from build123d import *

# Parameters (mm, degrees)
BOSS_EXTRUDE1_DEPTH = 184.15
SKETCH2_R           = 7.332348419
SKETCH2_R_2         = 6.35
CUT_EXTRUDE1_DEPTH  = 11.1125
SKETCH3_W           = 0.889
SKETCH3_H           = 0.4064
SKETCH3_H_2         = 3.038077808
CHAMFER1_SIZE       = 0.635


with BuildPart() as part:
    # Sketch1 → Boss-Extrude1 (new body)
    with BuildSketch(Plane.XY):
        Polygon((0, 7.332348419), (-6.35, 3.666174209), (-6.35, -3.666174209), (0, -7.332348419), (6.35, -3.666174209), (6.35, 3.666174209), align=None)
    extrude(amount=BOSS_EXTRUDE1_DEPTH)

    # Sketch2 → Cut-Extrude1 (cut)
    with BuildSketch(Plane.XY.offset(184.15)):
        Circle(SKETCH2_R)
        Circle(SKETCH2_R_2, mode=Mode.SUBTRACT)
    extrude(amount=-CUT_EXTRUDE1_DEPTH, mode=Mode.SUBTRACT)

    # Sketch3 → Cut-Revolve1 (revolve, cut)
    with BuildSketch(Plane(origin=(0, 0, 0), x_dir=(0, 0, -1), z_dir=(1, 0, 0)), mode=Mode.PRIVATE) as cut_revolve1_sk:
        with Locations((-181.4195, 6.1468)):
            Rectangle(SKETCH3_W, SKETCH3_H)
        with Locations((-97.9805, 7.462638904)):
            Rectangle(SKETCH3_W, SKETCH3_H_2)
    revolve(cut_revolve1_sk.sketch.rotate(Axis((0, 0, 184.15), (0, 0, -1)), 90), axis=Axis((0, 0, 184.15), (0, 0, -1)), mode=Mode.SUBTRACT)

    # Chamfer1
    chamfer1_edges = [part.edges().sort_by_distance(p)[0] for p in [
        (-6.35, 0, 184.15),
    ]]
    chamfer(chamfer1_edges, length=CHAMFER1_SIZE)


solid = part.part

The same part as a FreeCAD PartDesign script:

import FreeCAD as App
import Part
import Sketcher
from FreeCAD import Vector
Q = App.Units.Quantity


def edges_at(feature, points):
    """Names of the edges that pass closest to the given points."""
    edges = feature.Shape.Edges
    near = lambda p: min(range(len(edges)), key=lambda i: edges[i].distToShape(Part.Vertex(*p))[0])
    return sorted({f"Edge{near(p) + 1}" for p in points})


def add_polygon(sketch, points):
    """Adds a closed chain of lines whose ends are joined by coincident constraints."""
    first, n = sketch.GeometryCount, len(points)
    for a, b in zip(points, points[1:] + points[:1]):
        sketch.addGeometry(Part.LineSegment(App.Vector(*a, 0), App.Vector(*b, 0)), False)
    for i in range(n):
        sketch.addConstraint(Sketcher.Constraint("Coincident", first + i, 2, first + (i + 1) % n, 1))

doc = App.newDocument("Part")
params = doc.addObject("Spreadsheet::Sheet", "Params")
for row, (alias, value) in enumerate([
    ("pad1_length", "7.25 in"),
    ("sketch2_diameter", "0.5 in"),
    ("pocket1_length", "0.4375 in"),
    ("sketch3_width", "0.016 in"),
    ("sketch3_height", "0.035 in"),
    ("groove_angle", "360 deg"),
    ("chamfer_size", "0.025 in"),
], start=1):
    params.set(f"A{row}", alias)
    params.set(f"B{row}", "=" + value)
    params.setAlias(f"B{row}", alias)

body = doc.addObject("PartDesign::Body", "Body")

sketch1 = body.newObject("Sketcher::SketchObject", "Sketch")
sketch1.AttachmentSupport = (doc.getObject("XY_Plane"), [""])
sketch1.MapMode = "FlatFace"
add_polygon(sketch1, [(0, 7), (-6, 4), (-6, -4), (0, -7), (6, -4), (6, 4)])
sketch1.addConstraint([
    Sketcher.Constraint("Vertical", 1),
    Sketcher.Constraint("Vertical", 4),
    Sketcher.Constraint("Symmetric", 0, 2, 3, 2, -1, 1),
    Sketcher.Constraint("Symmetric", 2, 2, 5, 2, -1, 1),
    Sketcher.Constraint("PointOnObject", 2, 2, -2),
    Sketcher.Constraint("Parallel", 2, 5),
    Sketcher.Constraint("Horizontal", 1, 2, 3, 2),
    Sketcher.Constraint("Angle", 0, Q("-150 deg")),
    Sketcher.Constraint("DistanceX", 1, 2, 3, 2, Q("0.5 in")),
    Sketcher.Constraint("DistanceY", 1, 2, 1, 1, Q("7.332348 mm")),
])
pad1 = body.newObject("PartDesign::Pad", "Pad")
pad1.Profile = sketch1
pad1.setExpression("Length", "Params.pad1_length")

sketch2 = body.newObject("Sketcher::SketchObject", "Sketch001")
sketch2.AttachmentSupport = (doc.getObject("XY_Plane"), [""])
sketch2.MapMode = "FlatFace"
sketch2.AttachmentOffset = App.Placement(Vector(0, 0, 7.25 * 25.4), App.Rotation())
sketch2.addGeometry([
    Part.Circle(Vector(0, 0, 0), Vector(0, 0, 1), 7),
    Part.Circle(Vector(0, 0, 0), Vector(0, 0, 1), 6),
], False)
sketch2.addConstraint([
    Sketcher.Constraint("Coincident", 0, 3, -1, 1),
    Sketcher.Constraint("Coincident", 1, 3, -1, 1),
    Sketcher.Constraint("Diameter", 1, Q("0.5 in")),
    Sketcher.Constraint("Diameter", 0, Q("14.664697 mm")),
])
sketch2.setExpression("Constraints[2]", "Params.sketch2_diameter")
pocket1 = body.newObject("PartDesign::Pocket", "Pocket")
pocket1.Profile = sketch2
pocket1.setExpression("Length", "Params.pocket1_length")

sketch3 = body.newObject("Sketcher::SketchObject", "Sketch002")
sketch3.AttachmentSupport = (doc.getObject("YZ_Plane"), [""])
sketch3.MapMode = "FlatFace"
add_polygon(sketch3, [(6.35, 181.86), (5.94, 181.86), (5.94, 180.97), (6.35, 180.97)])
add_polygon(sketch3, [(8.98, 98.42), (5.94, 98.42), (5.94, 97.54), (8.98, 97.54)])
sketch3.addConstraint([
    Sketcher.Constraint("Horizontal", 0),
    Sketcher.Constraint("Vertical", 1),
    Sketcher.Constraint("Horizontal", 2),
    Sketcher.Constraint("Vertical", 3),
    Sketcher.Constraint("Horizontal", 4),
    Sketcher.Constraint("Vertical", 5),
    Sketcher.Constraint("Horizontal", 6),
    Sketcher.Constraint("Vertical", 7),
    Sketcher.Constraint("Vertical", 1, 2, 4, 2),
    Sketcher.Constraint("Equal", 3, 5),
    Sketcher.Constraint("DistanceX", 0, 2, 0, 1, Q("0.016 in")),
    Sketcher.Constraint("DistanceY", 1, 2, 1, 1, Q("0.035 in")),
    Sketcher.Constraint("DistanceY", -1, 1, 0, 2, Q("7.16 in")),
    Sketcher.Constraint("DistanceX", -1, 1, 2, 2, Q("0.25 in")),
    Sketcher.Constraint("DistanceY", -1, 1, 5, 2, Q("3.84 in")),
    Sketcher.Constraint("DistanceX", 4, 2, 4, 1, Q("3.038078 mm")),
])
sketch3.setExpression("Constraints[18]", "Params.sketch3_width")
sketch3.setExpression("Constraints[19]", "Params.sketch3_height")
groove = body.newObject("PartDesign::Groove", "Groove")
groove.Profile = sketch3
groove.ReferenceAxis = (sketch3, ["V_Axis"])
groove.setExpression("Angle", "Params.groove_angle")
doc.recompute()

chamfer = body.newObject("PartDesign::Chamfer", "Chamfer")
chamfer.Base = (groove, edges_at(groove, [(-6.35, 0, 184.15)]))
chamfer.setExpression("Size", "Params.chamfer_size")

doc.recompute()
